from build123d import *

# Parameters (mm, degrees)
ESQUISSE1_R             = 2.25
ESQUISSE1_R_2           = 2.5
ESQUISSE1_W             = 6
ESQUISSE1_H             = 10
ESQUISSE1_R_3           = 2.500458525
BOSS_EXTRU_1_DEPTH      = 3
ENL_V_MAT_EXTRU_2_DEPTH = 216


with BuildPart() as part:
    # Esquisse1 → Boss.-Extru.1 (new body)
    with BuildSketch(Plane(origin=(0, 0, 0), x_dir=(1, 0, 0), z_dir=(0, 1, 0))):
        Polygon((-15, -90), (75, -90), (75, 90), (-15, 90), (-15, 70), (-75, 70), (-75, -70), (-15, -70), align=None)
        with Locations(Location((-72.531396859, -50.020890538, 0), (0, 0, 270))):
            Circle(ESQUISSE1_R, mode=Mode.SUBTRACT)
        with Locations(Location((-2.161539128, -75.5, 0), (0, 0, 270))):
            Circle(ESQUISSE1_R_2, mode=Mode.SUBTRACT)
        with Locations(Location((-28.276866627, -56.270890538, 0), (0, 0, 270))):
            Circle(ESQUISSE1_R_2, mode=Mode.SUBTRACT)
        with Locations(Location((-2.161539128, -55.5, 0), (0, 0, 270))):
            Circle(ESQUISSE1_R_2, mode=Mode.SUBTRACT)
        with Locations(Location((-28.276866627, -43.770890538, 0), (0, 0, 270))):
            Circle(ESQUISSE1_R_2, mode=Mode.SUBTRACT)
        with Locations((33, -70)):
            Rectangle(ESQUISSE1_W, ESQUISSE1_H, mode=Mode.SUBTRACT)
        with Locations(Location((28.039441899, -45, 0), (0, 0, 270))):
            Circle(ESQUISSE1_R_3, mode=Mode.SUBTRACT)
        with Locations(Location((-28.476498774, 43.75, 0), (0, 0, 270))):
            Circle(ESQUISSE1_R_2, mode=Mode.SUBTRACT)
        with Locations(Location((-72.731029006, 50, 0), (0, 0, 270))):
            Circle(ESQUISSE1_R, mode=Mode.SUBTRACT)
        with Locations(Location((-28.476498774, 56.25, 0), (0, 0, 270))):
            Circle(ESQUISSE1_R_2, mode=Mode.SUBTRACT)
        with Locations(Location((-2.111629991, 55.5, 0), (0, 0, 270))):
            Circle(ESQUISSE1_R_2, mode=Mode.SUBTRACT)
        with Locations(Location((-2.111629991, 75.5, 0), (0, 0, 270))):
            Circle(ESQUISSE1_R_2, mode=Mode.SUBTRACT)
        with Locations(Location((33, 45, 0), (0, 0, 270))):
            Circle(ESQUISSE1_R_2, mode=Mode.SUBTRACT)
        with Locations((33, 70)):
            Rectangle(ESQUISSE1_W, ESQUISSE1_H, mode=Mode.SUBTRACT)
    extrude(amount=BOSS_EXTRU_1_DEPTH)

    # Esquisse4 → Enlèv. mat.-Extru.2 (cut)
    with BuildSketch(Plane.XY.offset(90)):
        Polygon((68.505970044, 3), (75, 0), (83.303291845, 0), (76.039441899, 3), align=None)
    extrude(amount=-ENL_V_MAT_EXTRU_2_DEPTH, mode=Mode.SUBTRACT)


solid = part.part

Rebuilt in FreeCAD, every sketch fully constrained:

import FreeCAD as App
import Part
import Sketcher
Q = App.Units.Quantity

doc = App.newDocument("Part")
body = doc.addObject("PartDesign::Body", "Body")

# Sketch on XZ plane
sketch1 = body.newObject("Sketcher::SketchObject", "Sketch")
sketch1.AttachmentSupport = (doc.getObject("XZ_Plane"), [""])
sketch1.MapMode = "FlatFace"
sketch1.addGeometry([
    Part.LineSegment(App.Vector(-15, 90, 0), App.Vector(75, 90, 0)),  # 0
    Part.LineSegment(App.Vector(75, 90, 0), App.Vector(75, -90, 0)),  # 1
    Part.LineSegment(App.Vector(75, -90, 0), App.Vector(-15, -90, 0)),  # 2
    Part.LineSegment(App.Vector(-15, -90, 0), App.Vector(-15, -70, 0)),  # 3
    Part.LineSegment(App.Vector(-15, -70, 0), App.Vector(-75, -70, 0)),  # 4
    Part.LineSegment(App.Vector(-75, -70, 0), App.Vector(-75, 70, 0)),  # 5
    Part.LineSegment(App.Vector(-75, 70, 0), App.Vector(-15, 70, 0)),  # 6
    Part.LineSegment(App.Vector(-15, 70, 0), App.Vector(-15, 90, 0)),  # 7
    Part.Circle(App.Vector(-72.531397, 50.020891, 0), App.Vector(0, 0, 1), 2.25),  # 8
    Part.Circle(App.Vector(-28.276867, 56.270891, 0), App.Vector(0, 0, 1), 2.5),  # 9
    Part.Circle(App.Vector(-28.276867, 43.770891, 0), App.Vector(0, 0, 1), 2.5),  # 10
    Part.Circle(App.Vector(-2.161539, 75.5, 0), App.Vector(0, 0, 1), 2.5),  # 11
    Part.Circle(App.Vector(-2.161539, 55.5, 0), App.Vector(0, 0, 1), 2.5),  # 12
    Part.LineSegment(App.Vector(36, 75, 0), App.Vector(30, 75, 0)),  # 13
    Part.LineSegment(App.Vector(30, 75, 0), App.Vector(30, 65, 0)),  # 14
    Part.LineSegment(App.Vector(30, 65, 0), App.Vector(36, 65, 0)),  # 15
    Part.LineSegment(App.Vector(36, 65, 0), App.Vector(36, 75, 0)),  # 16
    Part.Circle(App.Vector(28.039442, 45, 0), App.Vector(0, 0, 1), 2.500459),  # 17
    Part.Circle(App.Vector(-72.731029, -50, 0), App.Vector(0, 0, 1), 2.25),  # 18
    Part.Circle(App.Vector(-28.476499, -43.75, 0), App.Vector(0, 0, 1), 2.5),  # 19
    Part.Circle(App.Vector(-28.476499, -56.25, 0), App.Vector(0, 0, 1), 2.5),  # 20
    Part.Circle(App.Vector(-2.11163, -55.5, 0), App.Vector(0, 0, 1), 2.5),  # 21
    Part.Circle(App.Vector(-2.11163, -75.5, 0), App.Vector(0, 0, 1), 2.5),  # 22
    Part.Circle(App.Vector(33, -45, 0), App.Vector(0, 0, 1), 2.5),  # 23
    Part.LineSegment(App.Vector(36, -65, 0), App.Vector(30, -65, 0)),  # 24
    Part.LineSegment(App.Vector(30, -65, 0), App.Vector(30, -75, 0)),  # 25
    Part.LineSegment(App.Vector(30, -75, 0), App.Vector(36, -75, 0)),  # 26
    Part.LineSegment(App.Vector(36, -75, 0), App.Vector(36, -65, 0)),  # 27
], False)
sketch1.addConstraint([
    Sketcher.Constraint("Coincident", 0, 2, 1, 1),
    Sketcher.Constraint("Coincident", 1, 2, 2, 1),
    Sketcher.Constraint("Coincident", 2, 2, 3, 1),
    Sketcher.Constraint("Coincident", 3, 2, 4, 1),
    Sketcher.Constraint("Coincident", 4, 2, 5, 1),
    Sketcher.Constraint("Coincident", 5, 2, 6, 1),
    Sketcher.Constraint("Coincident", 6, 2, 7, 1),
    Sketcher.Constraint("Coincident", 7, 2, 0, 1),
    Sketcher.Constraint("Coincident", 13, 2, 14, 1),
    Sketcher.Constraint("Coincident", 14, 2, 15, 1),
    Sketcher.Constraint("Coincident", 15, 2, 16, 1),
    Sketcher.Constraint("Coincident", 16, 2, 13, 1),
    Sketcher.Constraint("Coincident", 24, 2, 25, 1),
    Sketcher.Constraint("Coincident", 25, 2, 26, 1),
    Sketcher.Constraint("Coincident", 26, 2, 27, 1),
    Sketcher.Constraint("Coincident", 27, 2, 24, 1),
    Sketcher.Constraint("Horizontal", 0),
    Sketcher.Constraint("Vertical", 1),
    Sketcher.Constraint("Horizontal", 2),
    Sketcher.Constraint("Vertical", 3),
    Sketcher.Constraint("Horizontal", 4),
    Sketcher.Constraint("Vertical", 5),
    Sketcher.Constraint("Horizontal", 6),
    Sketcher.Constraint("Vertical", 7),
    Sketcher.Constraint("Horizontal", 13),
    Sketcher.Constraint("Vertical", 14),
    Sketcher.Constraint("Horizontal", 15),
    Sketcher.Constraint("Vertical", 16),
    Sketcher.Constraint("Horizontal", 24),
    Sketcher.Constraint("Vertical", 25),
    Sketcher.Constraint("Horizontal", 26),
    Sketcher.Constraint("Vertical", 27),
    Sketcher.Constraint("Equal", 9, 10),
    Sketcher.Constraint("Equal", 10, 11),
    Sketcher.Constraint("Equal", 11, 12),
    Sketcher.Constraint("Equal", 8, 18),
    Sketcher.Constraint("Equal", 12, 19),
    Sketcher.Constraint("Equal", 19, 20),
    Sketcher.Constraint("Equal", 20, 21),
    Sketcher.Constraint("Equal", 21, 22),
    Sketcher.Constraint("Equal", 22, 23),
    Sketcher.Constraint("Symmetric", 3, 2, 6, 2, -1),
    Sketcher.Constraint("Symmetric", 14, 2, 24, 2, -1),
    Sketcher.Constraint("Symmetric", 16, 2, 26, 2, -1),
    Sketcher.Constraint("Vertical", 9, 3, 10, 3),
    Sketcher.Constraint("Vertical", 11, 3, 12, 3),
    Sketcher.Constraint("Vertical", 19, 3, 20, 3),
    Sketcher.Constraint("Vertical", 21, 3, 22, 3),
    Sketcher.Constraint("Equal", 3, 7),
    Sketcher.Constraint("Diameter", 9, Q("5 mm")),
    Sketcher.Constraint("Diameter", 8, Q("4.5 mm")),
    Sketcher.Constraint("DistanceX", 0, 1, 0, 2, Q("90 mm")),
    Sketcher.Constraint("DistanceX", 4, 2, 4, 1, Q("60 mm")),
    Sketcher.Constraint("DistanceX", 13, 2, 13, 1, Q("6 mm")),
    Sketcher.Constraint("DistanceY", 1, 2, 1, 1, Q("180 mm")),
    Sketcher.Constraint("DistanceY", 3, 1, 3, 2, Q("20 mm")),
    Sketcher.Constraint("DistanceY", 14, 2, 14, 1, Q("10 mm")),
    Sketcher.Constraint("DistanceY", -1, 1, 17, 3, Q("45 mm")),
    Sketcher.Constraint("DistanceY", 18, 3, -1, 1, Q("50 mm")),
    Sketcher.Constraint("DistanceX", -1, 1, 23, 3, Q("33 mm")),
    Sketcher.Constraint("DistanceY", 23, 3, -1, 1, Q("45 mm")),
    Sketcher.Constraint("DistanceX", -1, 1, 0, 2, Q("75 mm")),
    Sketcher.Constraint("DistanceX", -1, 1, 13, 2, Q("30 mm")),
    Sketcher.Constraint("DistanceY", -1, 1, 13, 2, Q("75 mm")),
    Sketcher.Constraint("DistanceY", 12, 3, 11, 3, Q("20 mm")),
    Sketcher.Constraint("DistanceY", 22, 3, 21, 3, Q("20 mm")),
    Sketcher.Constraint("DistanceY", -1, 1, 11, 3, Q("75.5 mm")),
    Sketcher.Constraint("DistanceY", 21, 3, -1, 1, Q("55.5 mm")),
    Sketcher.Constraint("DistanceY", 10, 3, 9, 3, Q("12.5 mm")),
    Sketcher.Constraint("DistanceY", 20, 3, 19, 3, Q("12.5 mm")),
    Sketcher.Constraint("DistanceY", 19, 3, -1, 1, Q("43.75 mm")),
    Sketcher.Constraint("DistanceY", 8, 3, 9, 3, Q("6.25 mm")),
    Sketcher.Constraint("Diameter", 17, Q("5.000917 mm")),
    Sketcher.Constraint("DistanceX", 19, 3, -1, 1, Q("28.476499 mm")),
    Sketcher.Constraint("DistanceX", 8, 3, 19, 3, Q("44.054898 mm")),
    Sketcher.Constraint("DistanceX", 18, 3, 21, 3, Q("70.619399 mm")),
    Sketcher.Constraint("DistanceY", -1, 1, 8, 3, Q("50.020891 mm")),
    Sketcher.Constraint("DistanceX", 11, 3, -1, 1, Q("2.161539 mm")),
    Sketcher.Constraint("DistanceX", -1, 1, 17, 3, Q("28.039442 mm")),
    Sketcher.Constraint("DistanceX", 18, 3, -1, 1, Q("72.731029 mm")),
    Sketcher.Constraint("DistanceX", 8, 3, 9, 3, Q("44.25453 mm")),
])
pad1 = body.newObject("PartDesign::Pad", "Pad")
pad1.Profile = sketch1
pad1.Length = 3
pad1.Reversed = True

# Sketch on XY plane
sketch2 = body.newObject("Sketcher::SketchObject", "Sketch001")
sketch2.AttachmentSupport = (doc.getObject("XY_Plane"), [""])
sketch2.MapMode = "FlatFace"
sketch2.AttachmentOffset = App.Placement(App.Vector(0, 0, 90), App.Rotation())
sketch2.addGeometry([
    Part.LineSegment(App.Vector(68.50597, 3, 0), App.Vector(75, 0, 0)),
    Part.LineSegment(App.Vector(75, 0, 0), App.Vector(83.303292, 0, 0)),
    Part.LineSegment(App.Vector(83.303292, 0, 0), App.Vector(76.039442, 3, 0)),
    Part.LineSegment(App.Vector(76.039442, 3, 0), App.Vector(68.50597, 3, 0)),
], False)
sketch2.addConstraint([
    Sketcher.Constraint("Coincident", 0, 2, 1, 1),
    Sketcher.Constraint("Coincident", 1, 2, 2, 1),
    Sketcher.Constraint("Coincident", 2, 2, 3, 1),
    Sketcher.Constraint("Coincident", 3, 2, 0, 1),
    Sketcher.Constraint("Horizontal", 1),
    Sketcher.Constraint("Horizontal", 3),
    Sketcher.Constraint("PointOnObject", 0, 2, -1),
    Sketcher.Constraint("DistanceX", -1, 1, 0, 2, Q("75 mm")),
    Sketcher.Constraint("DistanceY", -1, 1, 2, 2, Q("3 mm")),
    Sketcher.Constraint("DistanceX", 1, 1, 1, 2, Q("8.303292 mm")),
    Sketcher.Constraint("DistanceX", 3, 2, 3, 1, Q("7.533472 mm")),
    Sketcher.Constraint("Distance", 0, Q("7.15349 mm")),
])
pocket1 = body.newObject("PartDesign::Pocket", "Pocket")
pocket1.Profile = sketch2
pocket1.Length = 216

doc.recompute()
